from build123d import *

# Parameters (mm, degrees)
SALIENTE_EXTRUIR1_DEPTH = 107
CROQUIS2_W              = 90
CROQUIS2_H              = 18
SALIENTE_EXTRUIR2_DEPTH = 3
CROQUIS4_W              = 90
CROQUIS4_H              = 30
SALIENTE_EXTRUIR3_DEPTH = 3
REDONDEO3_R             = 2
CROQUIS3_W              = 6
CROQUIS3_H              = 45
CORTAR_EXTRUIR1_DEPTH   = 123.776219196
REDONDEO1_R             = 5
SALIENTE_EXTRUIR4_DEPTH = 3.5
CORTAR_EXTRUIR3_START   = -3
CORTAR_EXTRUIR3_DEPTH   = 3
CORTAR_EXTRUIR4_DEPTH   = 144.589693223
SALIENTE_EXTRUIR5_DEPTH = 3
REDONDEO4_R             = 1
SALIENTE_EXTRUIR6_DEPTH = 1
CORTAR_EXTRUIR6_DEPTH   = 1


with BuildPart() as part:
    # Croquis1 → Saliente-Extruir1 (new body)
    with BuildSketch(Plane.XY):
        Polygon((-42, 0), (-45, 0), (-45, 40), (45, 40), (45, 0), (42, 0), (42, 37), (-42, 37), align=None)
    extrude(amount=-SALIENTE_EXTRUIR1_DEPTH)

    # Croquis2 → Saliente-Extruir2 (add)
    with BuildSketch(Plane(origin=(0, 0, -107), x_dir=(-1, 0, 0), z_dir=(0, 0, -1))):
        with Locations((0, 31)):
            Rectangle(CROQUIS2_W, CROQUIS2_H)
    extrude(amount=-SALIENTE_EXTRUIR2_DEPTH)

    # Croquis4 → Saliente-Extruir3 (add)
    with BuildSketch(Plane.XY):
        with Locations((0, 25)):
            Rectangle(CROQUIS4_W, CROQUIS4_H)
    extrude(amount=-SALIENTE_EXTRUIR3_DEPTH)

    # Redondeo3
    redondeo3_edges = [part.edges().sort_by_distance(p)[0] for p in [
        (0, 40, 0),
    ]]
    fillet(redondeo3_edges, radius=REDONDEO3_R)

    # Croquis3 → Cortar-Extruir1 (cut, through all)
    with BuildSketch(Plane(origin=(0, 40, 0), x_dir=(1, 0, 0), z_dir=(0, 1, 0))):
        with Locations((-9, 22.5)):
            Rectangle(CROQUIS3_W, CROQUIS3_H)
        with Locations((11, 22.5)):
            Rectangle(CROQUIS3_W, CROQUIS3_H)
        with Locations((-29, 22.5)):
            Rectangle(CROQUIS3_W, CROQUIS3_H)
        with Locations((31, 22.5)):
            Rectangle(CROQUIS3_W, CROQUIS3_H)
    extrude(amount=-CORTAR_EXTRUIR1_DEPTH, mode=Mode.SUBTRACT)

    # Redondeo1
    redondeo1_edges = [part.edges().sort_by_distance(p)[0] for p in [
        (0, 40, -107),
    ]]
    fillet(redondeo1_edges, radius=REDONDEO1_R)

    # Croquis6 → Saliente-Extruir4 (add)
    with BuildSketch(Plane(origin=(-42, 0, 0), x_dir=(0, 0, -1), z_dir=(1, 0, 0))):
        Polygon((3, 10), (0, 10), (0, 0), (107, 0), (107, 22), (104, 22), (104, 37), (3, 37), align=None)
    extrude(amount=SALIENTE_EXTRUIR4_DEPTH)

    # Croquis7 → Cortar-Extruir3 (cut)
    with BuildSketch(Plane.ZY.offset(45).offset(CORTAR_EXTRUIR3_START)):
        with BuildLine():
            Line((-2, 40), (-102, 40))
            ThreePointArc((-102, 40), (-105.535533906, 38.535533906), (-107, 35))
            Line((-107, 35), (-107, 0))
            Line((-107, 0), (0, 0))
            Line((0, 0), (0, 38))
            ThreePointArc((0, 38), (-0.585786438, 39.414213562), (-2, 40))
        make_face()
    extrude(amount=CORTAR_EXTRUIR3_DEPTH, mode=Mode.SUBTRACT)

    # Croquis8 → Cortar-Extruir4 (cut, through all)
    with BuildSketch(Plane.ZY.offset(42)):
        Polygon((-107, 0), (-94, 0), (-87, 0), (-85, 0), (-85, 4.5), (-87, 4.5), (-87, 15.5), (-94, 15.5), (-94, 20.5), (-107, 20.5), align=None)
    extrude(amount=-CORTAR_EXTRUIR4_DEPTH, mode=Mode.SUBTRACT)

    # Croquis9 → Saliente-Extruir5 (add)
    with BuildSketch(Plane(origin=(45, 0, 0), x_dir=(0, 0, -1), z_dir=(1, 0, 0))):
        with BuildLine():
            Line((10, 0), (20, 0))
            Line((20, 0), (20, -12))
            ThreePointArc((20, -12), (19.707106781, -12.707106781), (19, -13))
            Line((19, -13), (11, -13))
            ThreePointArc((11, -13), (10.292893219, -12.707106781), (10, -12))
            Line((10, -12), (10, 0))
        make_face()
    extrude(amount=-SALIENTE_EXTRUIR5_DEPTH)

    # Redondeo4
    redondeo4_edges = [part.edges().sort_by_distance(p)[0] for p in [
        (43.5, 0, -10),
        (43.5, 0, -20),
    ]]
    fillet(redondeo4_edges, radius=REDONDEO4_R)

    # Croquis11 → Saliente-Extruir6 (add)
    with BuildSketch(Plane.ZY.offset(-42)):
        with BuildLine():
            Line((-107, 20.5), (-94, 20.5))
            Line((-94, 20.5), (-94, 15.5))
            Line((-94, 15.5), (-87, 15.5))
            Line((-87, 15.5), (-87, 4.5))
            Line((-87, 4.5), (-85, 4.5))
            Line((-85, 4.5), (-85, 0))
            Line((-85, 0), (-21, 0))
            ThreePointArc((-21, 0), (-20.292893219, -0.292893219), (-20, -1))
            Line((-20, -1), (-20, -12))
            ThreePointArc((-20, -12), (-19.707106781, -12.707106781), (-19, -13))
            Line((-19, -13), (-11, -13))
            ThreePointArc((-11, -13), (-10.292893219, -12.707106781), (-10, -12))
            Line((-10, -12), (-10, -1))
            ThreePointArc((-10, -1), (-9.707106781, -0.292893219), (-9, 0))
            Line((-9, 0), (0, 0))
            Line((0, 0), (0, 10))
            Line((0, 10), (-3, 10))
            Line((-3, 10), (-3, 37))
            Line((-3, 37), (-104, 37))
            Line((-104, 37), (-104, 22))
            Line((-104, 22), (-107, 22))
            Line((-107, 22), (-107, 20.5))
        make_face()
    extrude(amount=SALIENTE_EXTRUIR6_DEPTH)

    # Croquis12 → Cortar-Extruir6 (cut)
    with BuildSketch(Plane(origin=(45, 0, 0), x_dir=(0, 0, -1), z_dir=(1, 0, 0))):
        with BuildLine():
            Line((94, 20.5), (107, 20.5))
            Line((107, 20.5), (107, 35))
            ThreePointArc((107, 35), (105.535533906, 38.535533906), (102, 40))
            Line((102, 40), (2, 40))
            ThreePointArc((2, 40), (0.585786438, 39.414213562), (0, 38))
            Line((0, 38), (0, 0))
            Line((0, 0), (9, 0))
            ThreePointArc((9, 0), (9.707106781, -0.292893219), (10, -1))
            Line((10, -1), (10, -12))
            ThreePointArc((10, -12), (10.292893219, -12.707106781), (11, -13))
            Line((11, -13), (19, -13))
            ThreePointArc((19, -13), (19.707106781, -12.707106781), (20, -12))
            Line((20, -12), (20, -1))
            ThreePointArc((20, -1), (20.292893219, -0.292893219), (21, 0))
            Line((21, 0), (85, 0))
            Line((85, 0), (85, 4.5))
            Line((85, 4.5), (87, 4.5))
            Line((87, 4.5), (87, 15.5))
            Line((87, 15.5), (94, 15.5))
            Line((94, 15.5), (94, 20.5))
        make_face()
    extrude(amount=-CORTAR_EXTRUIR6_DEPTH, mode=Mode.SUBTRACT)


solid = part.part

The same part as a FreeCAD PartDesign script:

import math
import FreeCAD as App
import Part
import Sketcher

V = App.Vector
Q = App.Units.Quantity


def edges_at(feature, points):
    """Names of the edges that pass closest to the given points."""
    edges = feature.Shape.Edges
    near = lambda p: min(range(len(edges)), key=lambda i: edges[i].distToShape(Part.Vertex(*p))[0])
    return sorted({f"Edge{near(p) + 1}" for p in points})

doc = App.newDocument("Part")
body = doc.addObject("PartDesign::Body", "Body")

# Sketch on XY plane
sketch1 = body.newObject("Sketcher::SketchObject", "Sketch")
sketch1.AttachmentSupport = (doc.getObject("XY_Plane"), [""])
sketch1.MapMode = "FlatFace"
sketch1.addGeometry([
    Part.LineSegment(V(-45, 0, 0), V(-42, 0, 0)),  # 0
    Part.LineSegment(V(-42, 0, 0), V(-42, 37, 0)),  # 1
    Part.LineSegment(V(-42, 37, 0), V(42, 37, 0)),  # 2
    Part.LineSegment(V(42, 37, 0), V(42, 0, 0)),  # 3
    Part.LineSegment(V(42, 0, 0), V(45, 0, 0)),  # 4
    Part.LineSegment(V(45, 0, 0), V(45, 40, 0)),  # 5
    Part.LineSegment(V(45, 40, 0), V(-45, 40, 0)),  # 6
    Part.LineSegment(V(-45, 40, 0), V(-45, 0, 0)),  # 7
], False)
sketch1.addConstraint([
    Sketcher.Constraint("Coincident", 0, 2, 1, 1),
    Sketcher.Constraint("Coincident", 1, 2, 2, 1),
    Sketcher.Constraint("Coincident", 2, 2, 3, 1),
    Sketcher.Constraint("Coincident", 3, 2, 4, 1),
    Sketcher.Constraint("Coincident", 4, 2, 5, 1),
    Sketcher.Constraint("Coincident", 5, 2, 6, 1),
    Sketcher.Constraint("Coincident", 6, 2, 7, 1),
    Sketcher.Constraint("Coincident", 7, 2, 0, 1),
    Sketcher.Constraint("Horizontal", 0),
    Sketcher.Constraint("Vertical", 1),
    Sketcher.Constraint("Horizontal", 2),
    Sketcher.Constraint("Vertical", 3),
    Sketcher.Constraint("Horizontal", 4),
    Sketcher.Constraint("Vertical", 5),
    Sketcher.Constraint("Horizontal", 6),
    Sketcher.Constraint("Vertical", 7),
    Sketcher.Constraint("Symmetric", 0, 2, 3, 2, -1, 1),
    Sketcher.Constraint("Symmetric", 4, 2, 7, 2, -2),
    Sketcher.Constraint("DistanceX", 0, 1, 0, 2, Q("3 mm")),
    Sketcher.Constraint("DistanceX", 2, 1, 2, 2, Q("84 mm")),
    Sketcher.Constraint("DistanceY", 1, 1, 1, 2, Q("37 mm")),
    Sketcher.Constraint("DistanceY", 5, 1, 5, 2, Q("40 mm")),
])
pad1 = body.newObject("PartDesign::Pad", "Pad")
pad1.Profile = sketch1
pad1.Length = 107
pad1.Reversed = True

# Sketch on XY plane
sketch2 = body.newObject("Sketcher::SketchObject", "Sketch001")
sketch2.AttachmentSupport = (doc.getObject("XY_Plane"), [""])
sketch2.MapMode = "FlatFace"
sketch2.AttachmentOffset = App.Placement(V(0, 0, -107), App.Rotation())
sketch2.addGeometry([
    Part.LineSegment(V(45, 40, 0), V(45, 22, 0)),
    Part.LineSegment(V(45, 22, 0), V(-45, 22, 0)),
    Part.LineSegment(V(-45, 22, 0), V(-45, 40, 0)),
    Part.LineSegment(V(-45, 40, 0), V(45, 40, 0)),
], False)
sketch2.addConstraint([
    Sketcher.Constraint("Coincident", 0, 2, 1, 1),
    Sketcher.Constraint("Coincident", 1, 2, 2, 1),
    Sketcher.Constraint("Coincident", 2, 2, 3, 1),
    Sketcher.Constraint("Coincident", 3, 2, 0, 1),
    Sketcher.Constraint("Vertical", 0),
    Sketcher.Constraint("Horizontal", 1),
    Sketcher.Constraint("Vertical", 2),
    Sketcher.Constraint("Horizontal", 3),
    Sketcher.Constraint("DistanceX", 1, 2, 1, 1, Q("90 mm")),
    Sketcher.Constraint("DistanceY", 0, 2, 0, 1, Q("18 mm")),
    Sketcher.Constraint("DistanceX", -1, 1, 0, 2, Q("45 mm")),
    Sketcher.Constraint("DistanceY", -1, 1, 0, 2, Q("22 mm")),
])
pad2 = body.newObject("PartDesign::Pad", "Pad001")
pad2.Profile = sketch2
pad2.Length = 3

# Sketch on XY plane
sketch3 = body.newObject("Sketcher::SketchObject", "Sketch002")
sketch3.AttachmentSupport = (doc.getObject("XY_Plane"), [""])
sketch3.MapMode = "FlatFace"
sketch3.addGeometry([
    Part.LineSegment(V(-45, 40, 0), V(-45, 10, 0)),
    Part.LineSegment(V(-45, 10, 0), V(45, 10, 0)),
    Part.LineSegment(V(45, 10, 0), V(45, 40, 0)),
    Part.LineSegment(V(45, 40, 0), V(-45, 40, 0)),
], False)
sketch3.addConstraint([
    Sketcher.Constraint("Coincident", 0, 2, 1, 1),
    Sketcher.Constraint("Coincident", 1, 2, 2, 1),
    Sketcher.Constraint("Coincident", 2, 2, 3, 1),
    Sketcher.Constraint("Coincident", 3, 2, 0, 1),
    Sketcher.Constraint("Vertical", 0),
    Sketcher.Constraint("Horizontal", 1),
    Sketcher.Constraint("Vertical", 2),
    Sketcher.Constraint("Horizontal", 3),
    Sketcher.Constraint("DistanceX", 1, 1, 1, 2, Q("90 mm")),
    Sketcher.Constraint("DistanceY", 0, 2, 0, 1, Q("30 mm")),
    Sketcher.Constraint("DistanceX", 0, 2, -1, 1, Q("45 mm")),
    Sketcher.Constraint("DistanceY", -1, 1, 0, 2, Q("10 mm")),
])
pad3 = body.newObject("PartDesign::Pad", "Pad002")
pad3.Profile = sketch3
pad3.Length = 3
pad3.Reversed = True
doc.recompute()

fillet = body.newObject("PartDesign::Fillet", "Fillet")
fillet.Base = (pad3, edges_at(pad3, [(0, 40, 0)]))
fillet.Radius = 2

# Sketch on XZ plane
sketch4 = body.newObject("Sketcher::SketchObject", "Sketch003")
sketch4.AttachmentSupport = (doc.getObject("XZ_Plane"), [""])
sketch4.MapMode = "FlatFace"
sketch4.AttachmentOffset = App.Placement(V(0, 0, -40), App.Rotation())
sketch4.addGeometry([
    Part.LineSegment(V(-12, -45, 0), V(-12, 0, 0)),  # 0
    Part.LineSegment(V(-12, 0, 0), V(-6, 0, 0)),  # 1
    Part.LineSegment(V(-6, 0, 0), V(-6, -45, 0)),  # 2
    Part.LineSegment(V(-6, -45, 0), V(-12, -45, 0)),  # 3
    Part.LineSegment(V(8, -45, 0), V(8, 0, 0)),  # 4
    Part.LineSegment(V(8, 0, 0), V(14, 0, 0)),  # 5
    Part.LineSegment(V(14, 0, 0), V(14, -45, 0)),  # 6
    Part.LineSegment(V(14, -45, 0), V(8, -45, 0)),  # 7
    Part.LineSegment(V(-32, -45, 0), V(-32, 0, 0)),  # 8
    Part.LineSegment(V(-32, 0, 0), V(-26, 0, 0)),  # 9
    Part.LineSegment(V(-26, 0, 0), V(-26, -45, 0)),  # 10
    Part.LineSegment(V(-26, -45, 0), V(-32, -45, 0)),  # 11
    Part.LineSegment(V(28, -45, 0), V(28, 0, 0)),  # 12
    Part.LineSegment(V(28, 0, 0), V(34, 0, 0)),  # 13
    Part.LineSegment(V(34, 0, 0), V(34, -45, 0)),  # 14
    Part.LineSegment(V(34, -45, 0), V(28, -45, 0)),  # 15
], False)
sketch4.addConstraint([
    Sketcher.Constraint("Coincident", 0, 2, 1, 1),
    Sketcher.Constraint("Coincident", 1, 2, 2, 1),
    Sketcher.Constraint("Coincident", 2, 2, 3, 1),
    Sketcher.Constraint("Coincident", 3, 2, 0, 1),
    Sketcher.Constraint("Coincident", 4, 2, 5, 1),
    Sketcher.Constraint("Coincident", 5, 2, 6, 1),
    Sketcher.Constraint("Coincident", 6, 2, 7, 1),
    Sketcher.Constraint("Coincident", 7, 2, 4, 1),
    Sketcher.Constraint("Coincident", 8, 2, 9, 1),
    Sketcher.Constraint("Coincident", 9, 2, 10, 1),
    Sketcher.Constraint("Coincident", 10, 2, 11, 1),
    Sketcher.Constraint("Coincident", 11, 2, 8, 1),
    Sketcher.Constraint("Coincident", 12, 2, 13, 1),
    Sketcher.Constraint("Coincident", 13, 2, 14, 1),
    Sketcher.Constraint("Coincident", 14, 2, 15, 1),
    Sketcher.Constraint("Coincident", 15, 2, 12, 1),
    Sketcher.Constraint("Vertical", 0),
    Sketcher.Constraint("Horizontal", 1),
    Sketcher.Constraint("Vertical", 2),
    Sketcher.Constraint("Horizontal", 3),
    Sketcher.Constraint("Vertical", 4),
    Sketcher.Constraint("Horizontal", 5),
    Sketcher.Constraint("Vertical", 6),
    Sketcher.Constraint("Horizontal", 7),
    Sketcher.Constraint("Vertical", 8),
    Sketcher.Constraint("Horizontal", 9),
    Sketcher.Constraint("Vertical", 10),
    Sketcher.Constraint("Horizontal", 11),
    Sketcher.Constraint("Vertical", 12),
    Sketcher.Constraint("Horizontal", 13),
    Sketcher.Constraint("Vertical", 14),
    Sketcher.Constraint("Horizontal", 15),
    Sketcher.Constraint("PointOnObject", 0, 2, -1),
    Sketcher.Constraint("PointOnObject", 4, 2, -1),
    Sketcher.Constraint("PointOnObject", 8, 2, -1),
    Sketcher.Constraint("PointOnObject", 12, 2, -1),
    Sketcher.Constraint("Horizontal", 3, 2, 6, 2),
    Sketcher.Constraint("Horizontal", 7, 2, 10, 2),
    Sketcher.Constraint("Horizontal", 11, 2, 14, 2),
    Sketcher.Constraint("Equal", 3, 5),
    Sketcher.Constraint("Equal", 7, 9),
    Sketcher.Constraint("Equal", 11, 13),
    Sketcher.Constraint("DistanceX", 1, 1, 1, 2, Q("6 mm")),
    Sketcher.Constraint("DistanceY", 0, 1, 0, 2, Q("45 mm")),
    Sketcher.Constraint("DistanceX", 0, 2, -1, 1, Q("12 mm")),
    Sketcher.Constraint("DistanceX", -1, 1, 4, 2, Q("8 mm")),
    Sketcher.Constraint("DistanceX", 8, 2, -1, 1, Q("32 mm")),
    Sketcher.Constraint("DistanceX", -1, 1, 12, 2, Q("28 mm")),
])
pocket1 = body.newObject("PartDesign::Pocket", "Pocket")
pocket1.Profile = sketch4
pocket1.Type = "ThroughAll"
pocket1.Reversed = True
doc.recompute()

fillet2 = body.newObject("PartDesign::Fillet", "Fillet001")
fillet2.Base = (pocket1, edges_at(pocket1, [(0, 40, -107)]))
fillet2.Radius = 5

# Sketch on YZ plane
sketch5 = body.newObject("Sketcher::SketchObject", "Sketch004")
sketch5.AttachmentSupport = (doc.getObject("YZ_Plane"), [""])
sketch5.MapMode = "FlatFace"
sketch5.AttachmentOffset = App.Placement(V(0, 0, -42), App.Rotation())
sketch5.addGeometry([
    Part.LineSegment(V(10, -3, 0), V(10, 0, 0)),  # 0
    Part.LineSegment(V(10, 0, 0), V(0, 0, 0)),  # 1
    Part.LineSegment(V(0, 0, 0), V(0, -107, 0)),  # 2
    Part.LineSegment(V(0, -107, 0), V(22, -107, 0)),  # 3
    Part.LineSegment(V(22, -107, 0), V(22, -104, 0)),  # 4
    Part.LineSegment(V(22, -104, 0), V(37, -104, 0)),  # 5
    Part.LineSegment(V(37, -104, 0), V(37, -3, 0)),  # 6
    Part.LineSegment(V(37, -3, 0), V(10, -3, 0)),  # 7
], False)
sketch5.addConstraint([
    Sketcher.Constraint("Coincident", 0, 2, 1, 1),
    Sketcher.Constraint("Coincident", 1, 2, 2, 1),
    Sketcher.Constraint("Coincident", 2, 2, 3, 1),
    Sketcher.Constraint("Coincident", 3, 2, 4, 1),
    Sketcher.Constraint("Coincident", 4, 2, 5, 1),
    Sketcher.Constraint("Coincident", 5, 2, 6, 1),
    Sketcher.Constraint("Coincident", 6, 2, 7, 1),
    Sketcher.Constraint("Coincident", 7, 2, 0, 1),
    Sketcher.Constraint("Vertical", 0),
    Sketcher.Constraint("Horizontal", 1),
    Sketcher.Constraint("Vertical", 2),
    Sketcher.Constraint("Horizontal", 3),
    Sketcher.Constraint("Vertical", 4),
    Sketcher.Constraint("Horizontal", 5),
    Sketcher.Constraint("Vertical", 6),
    Sketcher.Constraint("Horizontal", 7),
    Sketcher.Constraint("Coincident", 1, 2, -1, 1),
    Sketcher.Constraint("Equal", 0, 4),
    Sketcher.Constraint("DistanceX", 1, 2, 1, 1, Q("10 mm")),
    Sketcher.Constraint("DistanceX", 3, 1, 3, 2, Q("22 mm")),
    Sketcher.Constraint("DistanceX", 5, 1, 5, 2, Q("15 mm")),
    Sketcher.Constraint("DistanceY", 0, 1, 0, 2, Q("3 mm")),
    Sketcher.Constraint("DistanceY", 2, 2, 2, 1, Q("107 mm")),
])
pad4 = body.newObject("PartDesign::Pad", "Pad003")
pad4.Profile = sketch5
pad4.Length = 3.5

# Sketch on YZ plane
sketch6 = body.newObject("Sketcher::SketchObject", "Sketch005")
sketch6.AttachmentSupport = (doc.getObject("YZ_Plane"), [""])
sketch6.MapMode = "FlatFace"
sketch6.AttachmentOffset = App.Placement(V(0, 0, -42), App.Rotation())
sketch6.addGeometry([
    Part.LineSegment(V(40, -2, 0), V(40, -102, 0)),  # 0
    Part.ArcOfCircle(Part.Circle(V(35, -102, 0), V(0, 0, 1), 5), math.radians(-90), math.radians(0)),  # 1
    Part.LineSegment(V(35, -107, 0), V(0, -107, 0)),  # 2
    Part.LineSegment(V(0, -107, 0), V(0, 0, 0)),  # 3
    Part.LineSegment(V(0, 0, 0), V(38, 0, 0)),  # 4
    Part.ArcOfCircle(Part.Circle(V(38, -2, 0), V(0, 0, 1), 2), math.radians(0), math.radians(90)),  # 5
], False)
sketch6.addConstraint([
    Sketcher.Constraint("Tangent", 0, 2, 1, 2),
    Sketcher.Constraint("Tangent", 1, 1, 2, 1),
    Sketcher.Constraint("Coincident", 2, 2, 3, 1),
    Sketcher.Constraint("Coincident", 3, 2, 4, 1),
    Sketcher.Constraint("Tangent", 4, 2, 5, 2),
    Sketcher.Constraint("Tangent", 5, 1, 0, 1),
    Sketcher.Constraint("Vertical", 0),
    Sketcher.Constraint("Horizontal", 2),
    Sketcher.Constraint("Vertical", 3),
    Sketcher.Constraint("Horizontal", 4),
    Sketcher.Constraint("Coincident", 3, 2, -1, 1),
    Sketcher.Constraint("Radius", 1, Q("5 mm")),
    Sketcher.Constraint("Radius", 5, Q("2 mm")),
    Sketcher.Constraint("DistanceX", 2, 2, 2, 1, Q("35 mm")),
    Sketcher.Constraint("DistanceY", 0, 2, 0, 1, Q("100 mm")),
])
pocket2 = body.newObject("PartDesign::Pocket", "Pocket001")
pocket2.Profile = sketch6
pocket2.Length = 3

# Sketch on YZ plane
sketch7 = body.newObject("Sketcher::SketchObject", "Sketch006")
sketch7.AttachmentSupport = (doc.getObject("YZ_Plane"), [""])
sketch7.MapMode = "FlatFace"
sketch7.AttachmentOffset = App.Placement(V(0, 0, -42), App.Rotation())
sketch7.addGeometry([
    Part.LineSegment(V(0, -107, 0), V(0, -85, 0)),  # 0
    Part.LineSegment(V(0, -85, 0), V(4.5, -85, 0)),  # 1
    Part.LineSegment(V(4.5, -85, 0), V(4.5, -87, 0)),  # 2
    Part.LineSegment(V(4.5, -87, 0), V(15.5, -87, 0)),  # 3
    Part.LineSegment(V(15.5, -87, 0), V(15.5, -94, 0)),  # 4
    Part.LineSegment(V(15.5, -94, 0), V(20.5, -94, 0)),  # 5
    Part.LineSegment(V(20.5, -94, 0), V(20.5, -107, 0)),  # 6
    Part.LineSegment(V(20.5, -107, 0), V(0, -107, 0)),  # 7
], False)
sketch7.addConstraint([
    Sketcher.Constraint("Coincident", 0, 2, 1, 1),
    Sketcher.Constraint("Coincident", 1, 2, 2, 1),
    Sketcher.Constraint("Coincident", 2, 2, 3, 1),
    Sketcher.Constraint("Coincident", 3, 2, 4, 1),
    Sketcher.Constraint("Coincident", 4, 2, 5, 1),
    Sketcher.Constraint("Coincident", 5, 2, 6, 1),
    Sketcher.Constraint("Coincident", 6, 2, 7, 1),
    Sketcher.Constraint("Coincident", 7, 2, 0, 1),
    Sketcher.Constraint("Vertical", 0),
    Sketcher.Constraint("Horizontal", 1),
    Sketcher.Constraint("Vertical", 2),
    Sketcher.Constraint("Horizontal", 3),
    Sketcher.Constraint("Vertical", 4),
    Sketcher.Constraint("Horizontal", 5),
    Sketcher.Constraint("Vertical", 6),
    Sketcher.Constraint("Horizontal", 7),
    Sketcher.Constraint("PointOnObject", 0, 2, -2),
    Sketcher.Constraint("DistanceX", 3, 1, 3, 2, Q("11 mm")),
    Sketcher.Constraint("DistanceX", 5, 1, 5, 2, Q("5 mm")),
    Sketcher.Constraint("DistanceY", 0, 1, 0, 2, Q("22 mm")),
    Sketcher.Constraint("DistanceY", 2, 2, 2, 1, Q("2 mm")),
    Sketcher.Constraint("DistanceY", 4, 2, 4, 1, Q("7 mm")),
    Sketcher.Constraint("DistanceX", 1, 1, 1, 2, Q("4.5 mm")),
    Sketcher.Constraint("DistanceY", 0, 2, -1, 1, Q("85 mm")),
])
pocket3 = body.newObject("PartDesign::Pocket", "Pocket002")
pocket3.Profile = sketch7
pocket3.Type = "ThroughAll"
pocket3.Reversed = True

# Sketch on YZ plane
sketch8 = body.newObject("Sketcher::SketchObject", "Sketch007")
sketch8.AttachmentSupport = (doc.getObject("YZ_Plane"), [""])
sketch8.MapMode = "FlatFace"
sketch8.AttachmentOffset = App.Placement(V(0, 0, 45), App.Rotation())
sketch8.addGeometry([
    Part.LineSegment(V(0, -20, 0), V(0, -10, 0)),  # 0
    Part.LineSegment(V(0, -10, 0), V(-12, -10, 0)),  # 1
    Part.ArcOfCircle(Part.Circle(V(-12, -11, 0), V(0, 0, 1), 1), math.radians(90), math.radians(180)),  # 2
    Part.LineSegment(V(-13, -11, 0), V(-13, -19, 0)),  # 3
    Part.ArcOfCircle(Part.Circle(V(-12, -19, 0), V(0, 0, 1), 1), math.radians(-180), math.radians(-90)),  # 4
    Part.LineSegment(V(-12, -20, 0), V(0, -20, 0)),  # 5
], False)
sketch8.addConstraint([
    Sketcher.Constraint("Coincident", 0, 2, 1, 1),
    Sketcher.Constraint("Tangent", 1, 2, 2, 1),
    Sketcher.Constraint("Tangent", 2, 2, 3, 1),
    Sketcher.Constraint("Tangent", 3, 2, 4, 1),
    Sketcher.Constraint("Tangent", 4, 2, 5, 1),
    Sketcher.Constraint("Coincident", 5, 2, 0, 1),
    Sketcher.Constraint("Vertical", 0),
    Sketcher.Constraint("Horizontal", 1),
    Sketcher.Constraint("Vertical", 3),
    Sketcher.Constraint("Horizontal", 5),
    Sketcher.Constraint("Equal", 2, 4),
    Sketcher.Constraint("PointOnObject", 0, 2, -2),
    Sketcher.Constraint("Radius", 2, Q("1 mm")),
    Sketcher.Constraint("DistanceX", 1, 2, 1, 1, Q("12 mm")),
    Sketcher.Constraint("DistanceY", 0, 1, 0, 2, Q("10 mm")),
    Sketcher.Constraint("DistanceY", 2, 3, -1, 1, Q("11 mm")),
])
pad5 = body.newObject("PartDesign::Pad", "Pad004")
pad5.Profile = sketch8
pad5.Length = 3
pad5.Reversed = True
doc.recompute()

fillet3 = body.newObject("PartDesign::Fillet", "Fillet002")
fillet3.Base = (pad5, edges_at(pad5, [(43.5, 0, -10), (43.5, 0, -20)]))
fillet3.Radius = 1

# Sketch on YZ plane
sketch9 = body.newObject("Sketcher::SketchObject", "Sketch008")
sketch9.AttachmentSupport = (doc.getObject("YZ_Plane"), [""])
sketch9.MapMode = "FlatFace"
sketch9.AttachmentOffset = App.Placement(V(0, 0, 42), App.Rotation())
sketch9.addGeometry([
    Part.LineSegment(V(20.5, -107, 0), V(20.5, -94, 0)),  # 0
    Part.LineSegment(V(20.5, -94, 0), V(15.5, -94, 0)),  # 1
    Part.LineSegment(V(15.5, -94, 0), V(15.5, -87, 0)),  # 2
    Part.LineSegment(V(15.5, -87, 0), V(4.5, -87, 0)),  # 3
    Part.LineSegment(V(4.5, -87, 0), V(4.5, -85, 0)),  # 4
    Part.LineSegment(V(4.5, -85, 0), V(0, -85, 0)),  # 5
    Part.LineSegment(V(0, -85, 0), V(0, -21, 0)),  # 6
    Part.ArcOfCircle(Part.Circle(V(-1, -21, 0), V(0, 0, 1), 1), math.radians(0), math.radians(90)),  # 7
    Part.LineSegment(V(-1, -20, 0), V(-12, -20, 0)),  # 8
    Part.ArcOfCircle(Part.Circle(V(-12, -19, 0), V(0, 0, 1), 1), math.radians(-180), math.radians(-90)),  # 9
    Part.LineSegment(V(-13, -19, 0), V(-13, -11, 0)),  # 10
    Part.ArcOfCircle(Part.Circle(V(-12, -11, 0), V(0, 0, 1), 1), math.radians(90), math.radians(180)),  # 11
    Part.LineSegment(V(-12, -10, 0), V(-1, -10, 0)),  # 12
    Part.ArcOfCircle(Part.Circle(V(-1, -9, 0), V(0, 0, 1), 1), math.radians(-90), math.radians(0)),  # 13
    Part.LineSegment(V(0, -9, 0), V(0, 0, 0)),  # 14
    Part.LineSegment(V(0, 0, 0), V(10, 0, 0)),  # 15
    Part.LineSegment(V(10, 0, 0), V(10, -3, 0)),  # 16
    Part.LineSegment(V(10, -3, 0), V(37, -3, 0)),  # 17
    Part.LineSegment(V(37, -3, 0), V(37, -104, 0)),  # 18
    Part.LineSegment(V(37, -104, 0), V(22, -104, 0)),  # 19
    Part.LineSegment(V(22, -104, 0), V(22, -107, 0)),  # 20
    Part.LineSegment(V(22, -107, 0), V(20.5, -107, 0)),  # 21
], False)
sketch9.addConstraint([
    Sketcher.Constraint("Coincident", 0, 2, 1, 1),
    Sketcher.Constraint("Coincident", 1, 2, 2, 1),
    Sketcher.Constraint("Coincident", 2, 2, 3, 1),
    Sketcher.Constraint("Coincident", 3, 2, 4, 1),
    Sketcher.Constraint("Coincident", 4, 2, 5, 1),
    Sketcher.Constraint("Coincident", 5, 2, 6, 1),
    Sketcher.Constraint("Tangent", 6, 2, 7, 1),
    Sketcher.Constraint("Tangent", 7, 2, 8, 1),
    Sketcher.Constraint("Tangent", 8, 2, 9, 2),
    Sketcher.Constraint("Tangent", 9, 1, 10, 1),
    Sketcher.Constraint("Tangent", 10, 2, 11, 2),
    Sketcher.Constraint("Tangent", 11, 1, 12, 1),
    Sketcher.Constraint("Tangent", 12, 2, 13, 1),
    Sketcher.Constraint("Tangent", 13, 2, 14, 1),
    Sketcher.Constraint("Coincident", 14, 2, 15, 1),
    Sketcher.Constraint("Coincident", 15, 2, 16, 1),
    Sketcher.Constraint("Coincident", 16, 2, 17, 1),
    Sketcher.Constraint("Coincident", 17, 2, 18, 1),
    Sketcher.Constraint("Coincident", 18, 2, 19, 1),
    Sketcher.Constraint("Coincident", 19, 2, 20, 1),
    Sketcher.Constraint("Coincident", 20, 2, 21, 1),
    Sketcher.Constraint("Coincident", 21, 2, 0, 1),
    Sketcher.Constraint("Vertical", 0),
    Sketcher.Constraint("Horizontal", 1),
    Sketcher.Constraint("Vertical", 2),
    Sketcher.Constraint("Horizontal", 3),
    Sketcher.Constraint("Vertical", 4),
    Sketcher.Constraint("Horizontal", 5),
    Sketcher.Constraint("Vertical", 6),
    Sketcher.Constraint("Horizontal", 8),
    Sketcher.Constraint("Vertical", 10),
    Sketcher.Constraint("Horizontal", 12),
    Sketcher.Constraint("Vertical", 14),
    Sketcher.Constraint("Horizontal", 15),
    Sketcher.Constraint("Vertical", 16),
    Sketcher.Constraint("Horizontal", 17),
    Sketcher.Constraint("Vertical", 18),
    Sketcher.Constraint("Horizontal", 19),
    Sketcher.Constraint("Vertical", 20),
    Sketcher.Constraint("Horizontal", 21),
    Sketcher.Constraint("Coincident", 14, 2, -1, 1),
    Sketcher.Constraint("Equal", 7, 9),
    Sketcher.Constraint("Equal", 9, 11),
    Sketcher.Constraint("Equal", 11, 13),
    Sketcher.Constraint("PointOnObject", 5, 2, -2),
    Sketcher.Constraint("Equal", 3, 8),
    Sketcher.Constraint("Equal", 16, 20),
    Sketcher.Constraint("Radius", 7, Q("1 mm")),
    Sketcher.Constraint("DistanceX", 1, 2, 1, 1, Q("5 mm")),
    Sketcher.Constraint("DistanceX", 3, 2, 3, 1, Q("11 mm")),
    Sketcher.Constraint("DistanceX", 15, 1, 15, 2, Q("10 mm")),
    Sketcher.Constraint("DistanceX", 17, 1, 17, 2, Q("27 mm")),
    Sketcher.Constraint("DistanceX", 19, 2, 19, 1, Q("15 mm")),
    Sketcher.Constraint("DistanceY", 0, 1, 0, 2, Q("13 mm")),
    Sketcher.Constraint("DistanceY", 2, 1, 2, 2, Q("7 mm")),
    Sketcher.Constraint("DistanceY", 4, 1, 4, 2, Q("2 mm")),
    Sketcher.Constraint("DistanceY", 6, 1, 6, 2, Q("64 mm")),
    Sketcher.Constraint("DistanceY", 10, 1, 10, 2, Q("8 mm")),
    Sketcher.Constraint("DistanceY", 14, 1, 14, 2, Q("9 mm")),
    Sketcher.Constraint("DistanceY", 16, 2, 16, 1, Q("3 mm")),
    Sketcher.Constraint("DistanceX", 5, 2, 5, 1, Q("4.5 mm")),
])
pad6 = body.newObject("PartDesign::Pad", "Pad005")
pad6.Profile = sketch9
pad6.Length = 1
pad6.Reversed = True

# Sketch on YZ plane
sketch10 = body.newObject("Sketcher::SketchObject", "Sketch009")
sketch10.AttachmentSupport = (doc.getObject("YZ_Plane"), [""])
sketch10.MapMode = "FlatFace"
sketch10.AttachmentOffset = App.Placement(V(0, 0, 45), App.Rotation())
sketch10.addGeometry([
    Part.LineSegment(V(20.5, -94, 0), V(20.5, -107, 0)),  # 0
    Part.LineSegment(V(20.5, -107, 0), V(35, -107, 0)),  # 1
    Part.ArcOfCircle(Part.Circle(V(35, -102, 0), V(0, 0, 1), 5), math.radians(-90), math.radians(0)),  # 2
    Part.LineSegment(V(40, -102, 0), V(40, -2, 0)),  # 3
    Part.ArcOfCircle(Part.Circle(V(38, -2, 0), V(0, 0, 1), 2), math.radians(0), math.radians(90)),  # 4
    Part.LineSegment(V(38, 0, 0), V(0, 0, 0)),  # 5
    Part.LineSegment(V(0, 0, 0), V(0, -9, 0)),  # 6
    Part.ArcOfCircle(Part.Circle(V(-1, -9, 0), V(0, 0, 1), 1), math.radians(-90), math.radians(0)),  # 7
    Part.LineSegment(V(-1, -10, 0), V(-12, -10, 0)),  # 8
    Part.ArcOfCircle(Part.Circle(V(-12, -11, 0), V(0, 0, 1), 1), math.radians(90), math.radians(180)),  # 9
    Part.LineSegment(V(-13, -11, 0), V(-13, -19, 0)),  # 10
    Part.ArcOfCircle(Part.Circle(V(-12, -19, 0), V(0, 0, 1), 1), math.radians(-180), math.radians(-90)),  # 11
    Part.LineSegment(V(-12, -20, 0), V(-1, -20, 0)),  # 12
    Part.ArcOfCircle(Part.Circle(V(-1, -21, 0), V(0, 0, 1), 1), math.radians(0), math.radians(90)),  # 13
    Part.LineSegment(V(0, -21, 0), V(0, -85, 0)),  # 14
    Part.LineSegment(V(0, -85, 0), V(4.5, -85, 0)),  # 15
    Part.LineSegment(V(4.5, -85, 0), V(4.5, -87, 0)),  # 16
    Part.LineSegment(V(4.5, -87, 0), V(15.5, -87, 0)),  # 17
    Part.LineSegment(V(15.5, -87, 0), V(15.5, -94, 0)),  # 18
    Part.LineSegment(V(15.5, -94, 0), V(20.5, -94, 0)),  # 19
], False)
sketch10.addConstraint([
    Sketcher.Constraint("Coincident", 0, 2, 1, 1),
    Sketcher.Constraint("Tangent", 1, 2, 2, 1),
    Sketcher.Constraint("Tangent", 2, 2, 3, 1),
    Sketcher.Constraint("Tangent", 3, 2, 4, 1),
    Sketcher.Constraint("Tangent", 4, 2, 5, 1),
    Sketcher.Constraint("Coincident", 5, 2, 6, 1),
    Sketcher.Constraint("Tangent", 6, 2, 7, 2),
    Sketcher.Constraint("Tangent", 7, 1, 8, 1),
    Sketcher.Constraint("Tangent", 8, 2, 9, 1),
    Sketcher.Constraint("Tangent", 9, 2, 10, 1),
    Sketcher.Constraint("Tangent", 10, 2, 11, 1),
    Sketcher.Constraint("Tangent", 11, 2, 12, 1),
    Sketcher.Constraint("Tangent", 12, 2, 13, 2),
    Sketcher.Constraint("Tangent", 13, 1, 14, 1),
    Sketcher.Constraint("Coincident", 14, 2, 15, 1),
    Sketcher.Constraint("Coincident", 15, 2, 16, 1),
    Sketcher.Constraint("Coincident", 16, 2, 17, 1),
    Sketcher.Constraint("Coincident", 17, 2, 18, 1),
    Sketcher.Constraint("Coincident", 18, 2, 19, 1),
    Sketcher.Constraint("Coincident", 19, 2, 0, 1),
    Sketcher.Constraint("Vertical", 0),
    Sketcher.Constraint("Horizontal", 1),
    Sketcher.Constraint("Vertical", 3),
    Sketcher.Constraint("Horizontal", 5),
    Sketcher.Constraint("Vertical", 6),
    Sketcher.Constraint("Horizontal", 8),
    Sketcher.Constraint("Vertical", 10),
    Sketcher.Constraint("Horizontal", 12),
    Sketcher.Constraint("Vertical", 14),
    Sketcher.Constraint("Horizontal", 15),
    Sketcher.Constraint("Vertical", 16),
    Sketcher.Constraint("Horizontal", 17),
    Sketcher.Constraint("Vertical", 18),
    Sketcher.Constraint("Horizontal", 19),
    Sketcher.Constraint("Coincident", 5, 2, -1, 1),
    Sketcher.Constraint("Equal", 7, 9),
    Sketcher.Constraint("Equal", 9, 11),
    Sketcher.Constraint("Equal", 11, 13),
    Sketcher.Constraint("PointOnObject", 13, 1, -2),
    Sketcher.Constraint("Equal", 12, 17),
    Sketcher.Constraint("Radius", 2, Q("5 mm")),
    Sketcher.Constraint("Radius", 4, Q("2 mm")),
    Sketcher.Constraint("Radius", 7, Q("1 mm")),
    Sketcher.Constraint("DistanceX", 5, 2, 5, 1, Q("38 mm")),
    Sketcher.Constraint("DistanceX", 8, 2, 8, 1, Q("11 mm")),
    Sketcher.Constraint("DistanceX", 19, 1, 19, 2, Q("5 mm")),
    Sketcher.Constraint("DistanceY", 0, 2, 0, 1, Q("13 mm")),
    Sketcher.Constraint("DistanceY", 3, 1, 3, 2, Q("100 mm")),
    Sketcher.Constraint("DistanceY", 6, 2, 6, 1, Q("9 mm")),
    Sketcher.Constraint("DistanceY", 10, 2, 10, 1, Q("8 mm")),
    Sketcher.Constraint("DistanceY", 14, 2, 14, 1, Q("64 mm")),
    Sketcher.Constraint("DistanceY", 16, 2, 16, 1, Q("2 mm")),
    Sketcher.Constraint("DistanceX", 1, 1, 1, 2, Q("14.5 mm")),
])
pocket4 = body.newObject("PartDesign::Pocket", "Pocket003")
pocket4.Profile = sketch10
pocket4.Length = 1

doc.recompute()
